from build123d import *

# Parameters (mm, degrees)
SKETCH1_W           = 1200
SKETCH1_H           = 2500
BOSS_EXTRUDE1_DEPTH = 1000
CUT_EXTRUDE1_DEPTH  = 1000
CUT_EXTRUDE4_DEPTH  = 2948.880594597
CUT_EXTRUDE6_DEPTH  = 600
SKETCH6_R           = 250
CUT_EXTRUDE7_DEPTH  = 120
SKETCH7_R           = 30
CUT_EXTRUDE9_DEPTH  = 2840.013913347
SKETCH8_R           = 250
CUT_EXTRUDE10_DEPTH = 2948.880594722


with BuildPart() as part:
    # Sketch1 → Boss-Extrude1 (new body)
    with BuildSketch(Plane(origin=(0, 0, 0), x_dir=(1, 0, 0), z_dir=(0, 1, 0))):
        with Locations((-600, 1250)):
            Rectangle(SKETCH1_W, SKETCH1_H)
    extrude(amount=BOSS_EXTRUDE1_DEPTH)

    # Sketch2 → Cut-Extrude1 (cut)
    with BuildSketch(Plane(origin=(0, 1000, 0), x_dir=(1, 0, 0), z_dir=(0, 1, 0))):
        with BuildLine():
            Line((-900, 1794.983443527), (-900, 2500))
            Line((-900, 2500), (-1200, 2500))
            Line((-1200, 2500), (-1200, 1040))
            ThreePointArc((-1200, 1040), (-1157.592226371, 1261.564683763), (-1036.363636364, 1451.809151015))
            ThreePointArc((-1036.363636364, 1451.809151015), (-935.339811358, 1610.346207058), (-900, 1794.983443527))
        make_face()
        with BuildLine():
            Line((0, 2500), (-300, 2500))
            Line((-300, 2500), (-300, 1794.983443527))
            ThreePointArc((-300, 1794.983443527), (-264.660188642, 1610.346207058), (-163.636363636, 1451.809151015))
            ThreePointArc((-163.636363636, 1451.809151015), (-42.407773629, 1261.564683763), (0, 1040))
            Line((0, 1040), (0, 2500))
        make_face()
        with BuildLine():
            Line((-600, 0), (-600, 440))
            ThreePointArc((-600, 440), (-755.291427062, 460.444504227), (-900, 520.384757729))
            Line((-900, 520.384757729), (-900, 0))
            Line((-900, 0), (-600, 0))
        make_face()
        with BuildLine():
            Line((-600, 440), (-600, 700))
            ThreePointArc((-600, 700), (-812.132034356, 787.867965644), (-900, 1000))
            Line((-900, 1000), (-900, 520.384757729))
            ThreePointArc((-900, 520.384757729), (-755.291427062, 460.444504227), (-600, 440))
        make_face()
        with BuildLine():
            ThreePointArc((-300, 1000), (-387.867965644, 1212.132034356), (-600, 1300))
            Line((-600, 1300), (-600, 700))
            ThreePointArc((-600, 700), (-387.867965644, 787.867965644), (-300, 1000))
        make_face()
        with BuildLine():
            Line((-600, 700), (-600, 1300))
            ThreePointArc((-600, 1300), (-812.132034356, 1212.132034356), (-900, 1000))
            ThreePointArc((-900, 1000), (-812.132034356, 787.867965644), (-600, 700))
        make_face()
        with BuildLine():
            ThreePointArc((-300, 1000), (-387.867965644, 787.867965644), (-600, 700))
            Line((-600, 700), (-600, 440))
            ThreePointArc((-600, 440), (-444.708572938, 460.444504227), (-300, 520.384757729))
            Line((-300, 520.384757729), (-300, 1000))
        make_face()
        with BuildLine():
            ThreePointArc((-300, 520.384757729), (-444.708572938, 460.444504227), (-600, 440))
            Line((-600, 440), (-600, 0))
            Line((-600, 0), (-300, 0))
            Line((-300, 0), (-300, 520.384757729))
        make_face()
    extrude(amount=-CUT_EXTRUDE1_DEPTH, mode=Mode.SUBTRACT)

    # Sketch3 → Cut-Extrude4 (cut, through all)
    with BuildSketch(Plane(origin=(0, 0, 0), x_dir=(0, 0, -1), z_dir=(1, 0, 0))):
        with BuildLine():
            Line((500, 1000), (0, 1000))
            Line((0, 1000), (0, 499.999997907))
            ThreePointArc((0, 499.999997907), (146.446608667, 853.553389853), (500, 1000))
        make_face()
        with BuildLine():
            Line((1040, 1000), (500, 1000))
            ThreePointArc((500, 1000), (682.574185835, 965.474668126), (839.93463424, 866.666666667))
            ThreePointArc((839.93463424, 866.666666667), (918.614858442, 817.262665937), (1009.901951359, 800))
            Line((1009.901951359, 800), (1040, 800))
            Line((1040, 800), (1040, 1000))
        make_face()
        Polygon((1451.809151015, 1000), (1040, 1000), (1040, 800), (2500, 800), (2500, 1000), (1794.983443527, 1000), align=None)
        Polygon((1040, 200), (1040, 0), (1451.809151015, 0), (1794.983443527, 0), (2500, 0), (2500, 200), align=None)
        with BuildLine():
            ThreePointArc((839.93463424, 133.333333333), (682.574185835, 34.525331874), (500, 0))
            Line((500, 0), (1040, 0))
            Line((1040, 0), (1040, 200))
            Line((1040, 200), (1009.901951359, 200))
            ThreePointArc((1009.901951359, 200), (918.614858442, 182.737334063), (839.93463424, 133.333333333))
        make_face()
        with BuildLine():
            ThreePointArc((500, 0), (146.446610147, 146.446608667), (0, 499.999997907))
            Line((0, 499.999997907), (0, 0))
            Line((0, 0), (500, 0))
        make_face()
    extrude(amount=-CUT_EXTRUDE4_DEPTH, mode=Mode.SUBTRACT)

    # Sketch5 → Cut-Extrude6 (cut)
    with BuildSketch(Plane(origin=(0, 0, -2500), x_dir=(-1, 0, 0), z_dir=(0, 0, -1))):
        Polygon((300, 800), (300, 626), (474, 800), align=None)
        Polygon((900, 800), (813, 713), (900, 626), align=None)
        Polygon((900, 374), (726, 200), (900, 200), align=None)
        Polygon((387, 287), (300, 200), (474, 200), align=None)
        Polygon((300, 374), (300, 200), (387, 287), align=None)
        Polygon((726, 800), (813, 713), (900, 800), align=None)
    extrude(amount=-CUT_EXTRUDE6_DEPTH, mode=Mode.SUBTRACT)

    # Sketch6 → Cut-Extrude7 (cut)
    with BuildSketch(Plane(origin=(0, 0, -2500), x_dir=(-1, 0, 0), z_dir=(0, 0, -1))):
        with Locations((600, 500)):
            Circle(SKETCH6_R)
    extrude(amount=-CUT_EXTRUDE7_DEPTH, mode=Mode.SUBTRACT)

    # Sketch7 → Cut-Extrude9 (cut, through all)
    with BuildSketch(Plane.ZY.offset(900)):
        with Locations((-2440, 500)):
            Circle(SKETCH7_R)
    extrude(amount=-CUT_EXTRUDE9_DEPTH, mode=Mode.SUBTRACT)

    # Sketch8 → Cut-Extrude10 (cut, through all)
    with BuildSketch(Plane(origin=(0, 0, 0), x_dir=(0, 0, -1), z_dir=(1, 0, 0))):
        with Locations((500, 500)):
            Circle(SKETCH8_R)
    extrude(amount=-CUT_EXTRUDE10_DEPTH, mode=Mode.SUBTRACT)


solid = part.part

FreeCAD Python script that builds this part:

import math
import FreeCAD as App
import Part
import Sketcher
from FreeCAD import Vector
Q = App.Units.Quantity

doc = App.newDocument("Part")
body = doc.addObject("PartDesign::Body", "Body")

# Sketch on XZ plane
sketch1 = doc.addObject("Sketcher::SketchObject", "Sketch")
body.addObject(sketch1)
sketch1.AttachmentSupport = (doc.XZ_Plane, [""])
sketch1.MapMode = "FlatFace"
sketch1.addGeometry([
    Part.LineSegment(Vector(-1200, -2500, 0), Vector(-1200, 0, 0)),
    Part.LineSegment(Vector(-1200, 0, 0), Vector(0, 0, 0)),
    Part.LineSegment(Vector(0, 0, 0), Vector(0, -2500, 0)),
    Part.LineSegment(Vector(0, -2500, 0), Vector(-1200, -2500, 0)),
], False)
sketch1.addConstraint([
    Sketcher.Constraint("Coincident", 0, 2, 1, 1),
    Sketcher.Constraint("Coincident", 1, 2, 2, 1),
    Sketcher.Constraint("Coincident", 2, 2, 3, 1),
    Sketcher.Constraint("Coincident", 3, 2, 0, 1),
    Sketcher.Constraint("Vertical", 0),
    Sketcher.Constraint("Horizontal", 1),
    Sketcher.Constraint("Vertical", 2),
    Sketcher.Constraint("Horizontal", 3),
    Sketcher.Constraint("Coincident", 1, 2, -1, 1),
    Sketcher.Constraint("DistanceX", 1, 1, 1, 2, Q("1200 mm")),
    Sketcher.Constraint("DistanceY", 0, 1, 0, 2, Q("2500 mm")),
])
pad1 = doc.addObject("PartDesign::Pad", "Pad")
body.addObject(pad1)
pad1.Profile = sketch1
pad1.Length = 1000
pad1.Reversed = True

# Sketch on XZ plane
sketch2 = doc.addObject("Sketcher::SketchObject", "Sketch001")
body.addObject(sketch2)
sketch2.AttachmentSupport = (doc.XZ_Plane, [""])
sketch2.MapMode = "FlatFace"
sketch2.AttachmentOffset = App.Placement(Vector(0, 0, -1000), App.Rotation())
sketch2.addGeometry([
    Part.LineSegment(Vector(-900, -1795, 0), Vector(-900, -2500, 0)),  # 0
    Part.LineSegment(Vector(-900, -2500, 0), Vector(-1200, -2500, 0)),  # 1
    Part.LineSegment(Vector(-1200, -2500, 0), Vector(-1200, -1040, 0)),  # 2
    Part.ArcOfCircle(Part.Circle(Vector(-600, -1040, 0), Vector(0, 0, 1), 600), math.radians(180), math.radians(223)),  # 3
    Part.ArcOfCircle(Part.Circle(Vector(-1400, -1795, 0), Vector(0, 0, 1), 500), math.radians(0), math.radians(43)),  # 4
    Part.LineSegment(Vector(0, -2500, 0), Vector(-300, -2500, 0)),  # 5
    Part.LineSegment(Vector(-300, -2500, 0), Vector(-300, -1795, 0)),  # 6
    Part.ArcOfCircle(Part.Circle(Vector(200, -1795, 0), Vector(0, 0, 1), 500), math.radians(137), math.radians(180)),  # 7
    Part.ArcOfCircle(Part.Circle(Vector(-600, -1040, 0), Vector(0, 0, 1), 600), math.radians(-43), math.radians(0)),  # 8
    Part.LineSegment(Vector(0, -1040, 0), Vector(0, -2500, 0)),  # 9
    Part.LineSegment(Vector(-900, -1000, 0), Vector(-900, 0, 0)),  # 10
    Part.LineSegment(Vector(-900, 0, 0), Vector(-300, 0, 0)),  # 11
    Part.LineSegment(Vector(-300, 0, 0), Vector(-300, -1000, 0)),  # 12
    Part.ArcOfCircle(Part.Circle(Vector(-600, -1000, 0), Vector(0, 0, 1), 300), math.radians(180), math.radians(360)),  # 13
], False)
sketch2.addConstraint([
    Sketcher.Constraint("Coincident", 0, 2, 1, 1),
    Sketcher.Constraint("Coincident", 1, 2, 2, 1),
    Sketcher.Constraint("Tangent", 2, 2, 3, 1),
    Sketcher.Constraint("Tangent", 3, 2, 4, 2),
    Sketcher.Constraint("Tangent", 4, 1, 0, 1),
    Sketcher.Constraint("Coincident", 5, 2, 6, 1),
    Sketcher.Constraint("Tangent", 6, 2, 7, 2),
    Sketcher.Constraint("Tangent", 7, 1, 8, 1),
    Sketcher.Constraint("Tangent", 8, 2, 9, 1),
    Sketcher.Constraint("Coincident", 9, 2, 5, 1),
    Sketcher.Constraint("Coincident", 10, 2, 11, 1),
    Sketcher.Constraint("Coincident", 11, 2, 12, 1),
    Sketcher.Constraint("Tangent", 12, 2, 13, 2),
    Sketcher.Constraint("Tangent", 13, 1, 10, 1),
    Sketcher.Constraint("Vertical", 0),
    Sketcher.Constraint("Horizontal", 1),
    Sketcher.Constraint("Vertical", 2),
    Sketcher.Constraint("Horizontal", 5),
    Sketcher.Constraint("Vertical", 6),
    Sketcher.Constraint("Vertical", 9),
    Sketcher.Constraint("Vertical", 10),
    Sketcher.Constraint("Horizontal", 11),
    Sketcher.Constraint("Vertical", 12),
    Sketcher.Constraint("Coincident", 8, 3, 3, 3),
    Sketcher.Constraint("Equal", 4, 7),
    Sketcher.Constraint("Equal", 3, 8),
    Sketcher.Constraint("PointOnObject", 8, 2, -2),
    Sketcher.Constraint("PointOnObject", 10, 2, -1),
    Sketcher.Constraint("Horizontal", 4, 3, 7, 3),
    Sketcher.Constraint("Horizontal", 1, 2, 5, 2),
    Sketcher.Constraint("Vertical", 8, 3, 13, 3),
    Sketcher.Constraint("Vertical", 4, 1, 10, 2),
    Sketcher.Constraint("Radius", 3, Q("600 mm")),
    Sketcher.Constraint("Radius", 4, Q("500 mm")),
    Sketcher.Constraint("Radius", 13, Q("300 mm")),
    Sketcher.Constraint("DistanceY", 2, 1, 2, 2, Q("1460 mm")),
    Sketcher.Constraint("DistanceY", 10, 1, 10, 2, Q("1000 mm")),
    Sketcher.Constraint("DistanceY", 3, 3, -1, 1, Q("1040 mm")),
])
pocket1 = doc.addObject("PartDesign::Pocket", "Pocket")
body.addObject(pocket1)
pocket1.Profile = sketch2
pocket1.Length = 1000
pocket1.Reversed = True

# Sketch on YZ plane
sketch3 = doc.addObject("Sketcher::SketchObject", "Sketch002")
body.addObject(sketch3)
sketch3.AttachmentSupport = (doc.YZ_Plane, [""])
sketch3.MapMode = "FlatFace"
sketch3.addGeometry([
    Part.LineSegment(Vector(1000, -500, 0), Vector(1000, 0, 0)),  # 0
    Part.LineSegment(Vector(1000, 0, 0), Vector(500, 0, 0)),  # 1
    Part.ArcOfCircle(Part.Circle(Vector(500, -500, 0), Vector(0, 0, 1), 500), math.radians(0), math.radians(90)),  # 2
    Part.ArcOfCircle(Part.Circle(Vector(500, -500, 0), Vector(0, 0, 1), 500), math.radians(-43), math.radians(0)),  # 3
    Part.ArcOfCircle(Part.Circle(Vector(1050, -1010, 0), Vector(0, 0, 1), 250), math.radians(137), math.radians(180)),  # 4
    Part.LineSegment(Vector(800, -1010, 0), Vector(800, -2500, 0)),  # 5
    Part.LineSegment(Vector(800, -2500, 0), Vector(1000, -2500, 0)),  # 6
    Part.LineSegment(Vector(1000, -2500, 0), Vector(1000, -500, 0)),  # 7
    Part.LineSegment(Vector(0, -2500, 0), Vector(200, -2500, 0)),  # 8
    Part.LineSegment(Vector(200, -2500, 0), Vector(200, -1010, 0)),  # 9
    Part.ArcOfCircle(Part.Circle(Vector(-50, -1010, 0), Vector(0, 0, 1), 250), math.radians(0), math.radians(43)),  # 10
    Part.ArcOfCircle(Part.Circle(Vector(500, -500, 0), Vector(0, 0, 1), 500), math.radians(180), math.radians(223)),  # 11
    Part.LineSegment(Vector(0, -500, 0), Vector(0, -2500, 0)),  # 12
    Part.ArcOfCircle(Part.Circle(Vector(500, -500, 0), Vector(0, 0, 1), 500), math.radians(90), math.radians(180)),  # 13
    Part.LineSegment(Vector(500, 0, 0), Vector(0, 0, 0)),  # 14
    Part.LineSegment(Vector(0, 0, 0), Vector(0, -500, 0)),  # 15
], False)
sketch3.addConstraint([
    Sketcher.Constraint("Coincident", 0, 2, 1, 1),
    Sketcher.Constraint("Tangent", 1, 2, 2, 2),
    Sketcher.Constraint("Tangent", 2, 1, 0, 1),
    Sketcher.Constraint("Tangent", 3, 1, 4, 1),
    Sketcher.Constraint("Tangent", 4, 2, 5, 1),
    Sketcher.Constraint("Coincident", 5, 2, 6, 1),
    Sketcher.Constraint("Coincident", 6, 2, 7, 1),
    Sketcher.Constraint("Tangent", 7, 2, 3, 2),
    Sketcher.Constraint("Coincident", 8, 2, 9, 1),
    Sketcher.Constraint("Tangent", 9, 2, 10, 1),
    Sketcher.Constraint("Tangent", 10, 2, 11, 2),
    Sketcher.Constraint("Tangent", 11, 1, 12, 1),
    Sketcher.Constraint("Coincident", 12, 2, 8, 1),
    Sketcher.Constraint("Tangent", 13, 1, 14, 1),
    Sketcher.Constraint("Coincident", 14, 2, 15, 1),
    Sketcher.Constraint("Tangent", 15, 2, 13, 2),
    Sketcher.Constraint("Vertical", 0),
    Sketcher.Constraint("Horizontal", 1),
    Sketcher.Constraint("Vertical", 5),
    Sketcher.Constraint("Horizontal", 6),
    Sketcher.Constraint("Vertical", 7),
    Sketcher.Constraint("Horizontal", 8),
    Sketcher.Constraint("Vertical", 9),
    Sketcher.Constraint("Vertical", 12),
    Sketcher.Constraint("Horizontal", 14),
    Sketcher.Constraint("Vertical", 15),
    Sketcher.Constraint("Coincident", 14, 2, -1, 1),
    Sketcher.Constraint("Coincident", 3, 3, 2, 3),
    Sketcher.Constraint("Coincident", 11, 3, 2, 3),
    Sketcher.Constraint("Coincident", 13, 3, 2, 3),
    Sketcher.Constraint("Equal", 2, 3),
    Sketcher.Constraint("Equal", 4, 10),
    Sketcher.Constraint("Equal", 3, 11),
    Sketcher.Constraint("Equal", 11, 13),
    Sketcher.Constraint("Horizontal", 4, 3, 10, 3),
    Sketcher.Constraint("Horizontal", 6, 2, 8, 2),
    Sketcher.Constraint("Radius", 2, Q("500 mm")),
    Sketcher.Constraint("Radius", 4, Q("250 mm")),
    Sketcher.Constraint("DistanceX", 6, 1, 6, 2, Q("200 mm")),
    Sketcher.Constraint("DistanceY", 7, 1, 7, 2, Q("2000 mm")),
])
pocket2 = doc.addObject("PartDesign::Pocket", "Pocket001")
body.addObject(pocket2)
pocket2.Profile = sketch3
pocket2.Type = "ThroughAll"

# Sketch on XY plane
sketch4 = doc.addObject("Sketcher::SketchObject", "Sketch003")
body.addObject(sketch4)
sketch4.AttachmentSupport = (doc.XY_Plane, [""])
sketch4.MapMode = "FlatFace"
sketch4.AttachmentOffset = App.Placement(Vector(0, 0, -2500), App.Rotation())
sketch4.addGeometry([
    Part.LineSegment(Vector(-300, 800, 0), Vector(-300, 626, 0)),  # 0
    Part.LineSegment(Vector(-300, 626, 0), Vector(-474, 800, 0)),  # 1
    Part.LineSegment(Vector(-474, 800, 0), Vector(-300, 800, 0)),  # 2
    Part.LineSegment(Vector(-900, 626, 0), Vector(-900, 800, 0)),  # 3
    Part.LineSegment(Vector(-900, 800, 0), Vector(-726, 800, 0)),  # 4
    Part.LineSegment(Vector(-726, 800, 0), Vector(-900, 626, 0)),  # 5
    Part.LineSegment(Vector(-900, 374, 0), Vector(-726, 200, 0)),  # 6
    Part.LineSegment(Vector(-726, 200, 0), Vector(-900, 200, 0)),  # 7
    Part.LineSegment(Vector(-900, 200, 0), Vector(-900, 374, 0)),  # 8
    Part.LineSegment(Vector(-300, 200, 0), Vector(-474, 200, 0)),  # 9
    Part.LineSegment(Vector(-474, 200, 0), Vector(-300, 374, 0)),  # 10
    Part.LineSegment(Vector(-300, 374, 0), Vector(-300, 200, 0)),  # 11
], False)
sketch4.addConstraint([
    Sketcher.Constraint("Coincident", 0, 2, 1, 1),
    Sketcher.Constraint("Coincident", 1, 2, 2, 1),
    Sketcher.Constraint("Coincident", 2, 2, 0, 1),
    Sketcher.Constraint("Coincident", 3, 2, 4, 1),
    Sketcher.Constraint("Coincident", 4, 2, 5, 1),
    Sketcher.Constraint("Coincident", 5, 2, 3, 1),
    Sketcher.Constraint("Coincident", 6, 2, 7, 1),
    Sketcher.Constraint("Coincident", 7, 2, 8, 1),
    Sketcher.Constraint("Coincident", 8, 2, 6, 1),
    Sketcher.Constraint("Coincident", 9, 2, 10, 1),
    Sketcher.Constraint("Coincident", 10, 2, 11, 1),
    Sketcher.Constraint("Coincident", 11, 2, 9, 1),
    Sketcher.Constraint("Vertical", 0),
    Sketcher.Constraint("Horizontal", 2),
    Sketcher.Constraint("Vertical", 3),
    Sketcher.Constraint("Horizontal", 4),
    Sketcher.Constraint("Horizontal", 7),
    Sketcher.Constraint("Vertical", 8),
    Sketcher.Constraint("Horizontal", 9),
    Sketcher.Constraint("Vertical", 11),
    Sketcher.Constraint("Perpendicular", 1, 5),
    Sketcher.Constraint("Perpendicular", 5, 6),
    Sketcher.Constraint("Perpendicular", 6, 10),
    Sketcher.Constraint("Horizontal", 2, 2, 3, 2),
    Sketcher.Constraint("Horizontal", 0, 2, 5, 2),
    Sketcher.Constraint("Horizontal", 7, 2, 9, 2),
    Sketcher.Constraint("Horizontal", 8, 2, 10, 2),
    Sketcher.Constraint("Vertical", 4, 2, 6, 2),
    Sketcher.Constraint("Vertical", 5, 2, 7, 2),
    Sketcher.Constraint("Vertical", 1, 2, 9, 2),
    Sketcher.Constraint("Vertical", 2, 2, 10, 2),
    Sketcher.Constraint("DistanceX", 2, 1, 2, 2, Q("174 mm")),
    Sketcher.Constraint("DistanceX", 0, 2, -1, 1, Q("300 mm")),
    Sketcher.Constraint("DistanceY", -1, 1, 0, 2, Q("626 mm")),
    Sketcher.Constraint("DistanceX", 3, 2, -1, 1, Q("900 mm")),
    Sketcher.Constraint("DistanceY", -1, 1, 6, 2, Q("200 mm")),
])
pocket3 = doc.addObject("PartDesign::Pocket", "Pocket002")
body.addObject(pocket3)
pocket3.Profile = sketch4
pocket3.Length = 600
pocket3.Reversed = True

# Sketch on XY plane
sketch5 = doc.addObject("Sketcher::SketchObject", "Sketch004")
body.addObject(sketch5)
sketch5.AttachmentSupport = (doc.XY_Plane, [""])
sketch5.MapMode = "FlatFace"
sketch5.AttachmentOffset = App.Placement(Vector(0, 0, -2500), App.Rotation())
sketch5.addGeometry(Part.Circle(Vector(-600, 500, 0), Vector(0, 0, 1), 250), False)
sketch5.addConstraint([
    Sketcher.Constraint("Diameter", 0, Q("500 mm")),
    Sketcher.Constraint("DistanceX", 0, 3, -1, 1, Q("600 mm")),
    Sketcher.Constraint("DistanceY", -1, 1, 0, 3, Q("500 mm")),
])
pocket4 = doc.addObject("PartDesign::Pocket", "Pocket003")
body.addObject(pocket4)
pocket4.Profile = sketch5
pocket4.Length = 120
pocket4.Reversed = True

# Sketch on YZ plane
sketch6 = doc.addObject("Sketcher::SketchObject", "Sketch005")
body.addObject(sketch6)
sketch6.AttachmentSupport = (doc.YZ_Plane, [""])
sketch6.MapMode = "FlatFace"
sketch6.AttachmentOffset = App.Placement(Vector(0, 0, -900), App.Rotation())
sketch6.addGeometry(Part.Circle(Vector(500, -2440, 0), Vector(0, 0, 1), 30), False)
sketch6.addConstraint([
    Sketcher.Constraint("Diameter", 0, Q("60 mm")),
    Sketcher.Constraint("DistanceX", -1, 1, 0, 3, Q("500 mm")),
    Sketcher.Constraint("DistanceY", 0, 3, -1, 1, Q("2440 mm")),
])
pocket5 = doc.addObject("PartDesign::Pocket", "Pocket004")
body.addObject(pocket5)
pocket5.Profile = sketch6
pocket5.Type = "ThroughAll"
pocket5.Reversed = True

# Sketch on YZ plane
sketch7 = doc.addObject("Sketcher::SketchObject", "Sketch006")
body.addObject(sketch7)
sketch7.AttachmentSupport = (doc.YZ_Plane, [""])
sketch7.MapMode = "FlatFace"
sketch7.addGeometry(Part.Circle(Vector(500, -500, 0), Vector(0, 0, 1), 250), False)
sketch7.addConstraint([
    Sketcher.Constraint("Diameter", 0, Q("500 mm")),
    Sketcher.Constraint("DistanceX", -1, 1, 0, 3, Q("500 mm")),
    Sketcher.Constraint("DistanceY", 0, 3, -1, 1, Q("500 mm")),
])
pocket6 = doc.addObject("PartDesign::Pocket", "Pocket005")
body.addObject(pocket6)
pocket6.Profile = sketch7
pocket6.Type = "ThroughAll"

doc.recompute()
